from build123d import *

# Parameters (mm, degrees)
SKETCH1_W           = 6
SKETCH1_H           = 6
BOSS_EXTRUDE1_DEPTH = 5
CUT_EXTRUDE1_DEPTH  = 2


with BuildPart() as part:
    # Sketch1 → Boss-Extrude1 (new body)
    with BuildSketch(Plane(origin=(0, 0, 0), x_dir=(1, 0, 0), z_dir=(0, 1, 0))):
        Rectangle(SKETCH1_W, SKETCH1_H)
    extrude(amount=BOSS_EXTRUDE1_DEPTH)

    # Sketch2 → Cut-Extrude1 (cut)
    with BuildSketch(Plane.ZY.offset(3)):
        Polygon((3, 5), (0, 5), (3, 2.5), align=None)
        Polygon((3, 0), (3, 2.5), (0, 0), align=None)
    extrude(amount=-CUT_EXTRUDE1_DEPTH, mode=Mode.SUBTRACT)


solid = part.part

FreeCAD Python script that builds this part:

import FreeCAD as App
import Part
import Sketcher

V = App.Vector
Q = App.Units.Quantity

doc = App.newDocument("Part")
body = doc.addObject("PartDesign::Body", "Body")

# Sketch on XZ plane
sketch1 = body.newObject("Sketcher::SketchObject", "Sketch")
sketch1.AttachmentSupport = (doc.getObject("XZ_Plane"), [""])
sketch1.MapMode = "FlatFace"
sketch1.addGeometry(Part.LineSegment(V(-3, -3, 0), V(-3, 3, 0)), False)
sketch1.addGeometry(Part.LineSegment(V(-3, 3, 0), V(3, 3, 0)), False)
sketch1.addGeometry(Part.LineSegment(V(3, 3, 0), V(3, -3, 0)), False)
sketch1.addGeometry(Part.LineSegment(V(3, -3, 0), V(-3, -3, 0)), False)
sketch1.addConstraint(Sketcher.Constraint("Coincident", 0, 2, 1, 1))
sketch1.addConstraint(Sketcher.Constraint("Coincident", 1, 2, 2, 1))
sketch1.addConstraint(Sketcher.Constraint("Coincident", 2, 2, 3, 1))
sketch1.addConstraint(Sketcher.Constraint("Coincident", 3, 2, 0, 1))
sketch1.addConstraint(Sketcher.Constraint("Vertical", 0))
sketch1.addConstraint(Sketcher.Constraint("Horizontal", 1))
sketch1.addConstraint(Sketcher.Constraint("Vertical", 2))
sketch1.addConstraint(Sketcher.Constraint("Horizontal", 3))
sketch1.addConstraint(Sketcher.Constraint("Symmetric", 0, 2, 2, 2, -1, 1))
sketch1.addConstraint(Sketcher.Constraint("Equal", 3, 0))
sketch1.addConstraint(Sketcher.Constraint("DistanceX", 1, 1, 1, 2, Q("6 mm")))
pad1 = body.newObject("PartDesign::Pad", "Pad")
pad1.Profile = sketch1
pad1.Length = 5
pad1.Reversed = True

# Sketch on YZ plane
sketch2 = body.newObject("Sketcher::SketchObject", "Sketch001")
sketch2.AttachmentSupport = (doc.getObject("YZ_Plane"), [""])
sketch2.MapMode = "FlatFace"
sketch2.AttachmentOffset = App.Placement(V(0, 0, -3), App.Rotation())
sketch2.addGeometry(Part.LineSegment(V(5, 3, 0), V(5, 0, 0)), False)
sketch2.addGeometry(Part.LineSegment(V(5, 0, 0), V(2.5, 3, 0)), False)
sketch2.addGeometry(Part.LineSegment(V(2.5, 3, 0), V(5, 3, 0)), False)
sketch2.addGeometry(Part.LineSegment(V(0, 3, 0), V(2.5, 3, 0)), False)
sketch2.addGeometry(Part.LineSegment(V(2.5, 3, 0), V(0, 0, 0)), False)
sketch2.addGeometry(Part.LineSegment(V(0, 0, 0), V(0, 3, 0)), False)
sketch2.addConstraint(Sketcher.Constraint("Coincident", 0, 2, 1, 1))
sketch2.addConstraint(Sketcher.Constraint("Coincident", 1, 2, 2, 1))
sketch2.addConstraint(Sketcher.Constraint("Coincident", 2, 2, 0, 1))
sketch2.addConstraint(Sketcher.Constraint("Coincident", 3, 2, 4, 1))
sketch2.addConstraint(Sketcher.Constraint("Coincident", 4, 2, 5, 1))
sketch2.addConstraint(Sketcher.Constraint("Coincident", 5, 2, 3, 1))
sketch2.addConstraint(Sketcher.Constraint("Vertical", 0))
sketch2.addConstraint(Sketcher.Constraint("Horizontal", 2))
sketch2.addConstraint(Sketcher.Constraint("Horizontal", 3))
sketch2.addConstraint(Sketcher.Constraint("Vertical", 5))
sketch2.addConstraint(Sketcher.Constraint("Coincident", 4, 2, -1, 1))
sketch2.addConstraint(Sketcher.Constraint("Coincident", 3, 2, 1, 2))
sketch2.addConstraint(Sketcher.Constraint("PointOnObject", 0, 2, -1))
sketch2.addConstraint(Sketcher.Constraint("Equal", 2, 3))
sketch2.addConstraint(Sketcher.Constraint("DistanceY", 0, 2, 0, 1, Q("3 mm")))
sketch2.addConstraint(Sketcher.Constraint("DistanceX", 2, 1, 2, 2, Q("2.5 mm")))
pocket1 = body.newObject("PartDesign::Pocket", "Pocket")
pocket1.Profile = sketch2
pocket1.Length = 2
pocket1.Reversed = True

doc.recompute()
